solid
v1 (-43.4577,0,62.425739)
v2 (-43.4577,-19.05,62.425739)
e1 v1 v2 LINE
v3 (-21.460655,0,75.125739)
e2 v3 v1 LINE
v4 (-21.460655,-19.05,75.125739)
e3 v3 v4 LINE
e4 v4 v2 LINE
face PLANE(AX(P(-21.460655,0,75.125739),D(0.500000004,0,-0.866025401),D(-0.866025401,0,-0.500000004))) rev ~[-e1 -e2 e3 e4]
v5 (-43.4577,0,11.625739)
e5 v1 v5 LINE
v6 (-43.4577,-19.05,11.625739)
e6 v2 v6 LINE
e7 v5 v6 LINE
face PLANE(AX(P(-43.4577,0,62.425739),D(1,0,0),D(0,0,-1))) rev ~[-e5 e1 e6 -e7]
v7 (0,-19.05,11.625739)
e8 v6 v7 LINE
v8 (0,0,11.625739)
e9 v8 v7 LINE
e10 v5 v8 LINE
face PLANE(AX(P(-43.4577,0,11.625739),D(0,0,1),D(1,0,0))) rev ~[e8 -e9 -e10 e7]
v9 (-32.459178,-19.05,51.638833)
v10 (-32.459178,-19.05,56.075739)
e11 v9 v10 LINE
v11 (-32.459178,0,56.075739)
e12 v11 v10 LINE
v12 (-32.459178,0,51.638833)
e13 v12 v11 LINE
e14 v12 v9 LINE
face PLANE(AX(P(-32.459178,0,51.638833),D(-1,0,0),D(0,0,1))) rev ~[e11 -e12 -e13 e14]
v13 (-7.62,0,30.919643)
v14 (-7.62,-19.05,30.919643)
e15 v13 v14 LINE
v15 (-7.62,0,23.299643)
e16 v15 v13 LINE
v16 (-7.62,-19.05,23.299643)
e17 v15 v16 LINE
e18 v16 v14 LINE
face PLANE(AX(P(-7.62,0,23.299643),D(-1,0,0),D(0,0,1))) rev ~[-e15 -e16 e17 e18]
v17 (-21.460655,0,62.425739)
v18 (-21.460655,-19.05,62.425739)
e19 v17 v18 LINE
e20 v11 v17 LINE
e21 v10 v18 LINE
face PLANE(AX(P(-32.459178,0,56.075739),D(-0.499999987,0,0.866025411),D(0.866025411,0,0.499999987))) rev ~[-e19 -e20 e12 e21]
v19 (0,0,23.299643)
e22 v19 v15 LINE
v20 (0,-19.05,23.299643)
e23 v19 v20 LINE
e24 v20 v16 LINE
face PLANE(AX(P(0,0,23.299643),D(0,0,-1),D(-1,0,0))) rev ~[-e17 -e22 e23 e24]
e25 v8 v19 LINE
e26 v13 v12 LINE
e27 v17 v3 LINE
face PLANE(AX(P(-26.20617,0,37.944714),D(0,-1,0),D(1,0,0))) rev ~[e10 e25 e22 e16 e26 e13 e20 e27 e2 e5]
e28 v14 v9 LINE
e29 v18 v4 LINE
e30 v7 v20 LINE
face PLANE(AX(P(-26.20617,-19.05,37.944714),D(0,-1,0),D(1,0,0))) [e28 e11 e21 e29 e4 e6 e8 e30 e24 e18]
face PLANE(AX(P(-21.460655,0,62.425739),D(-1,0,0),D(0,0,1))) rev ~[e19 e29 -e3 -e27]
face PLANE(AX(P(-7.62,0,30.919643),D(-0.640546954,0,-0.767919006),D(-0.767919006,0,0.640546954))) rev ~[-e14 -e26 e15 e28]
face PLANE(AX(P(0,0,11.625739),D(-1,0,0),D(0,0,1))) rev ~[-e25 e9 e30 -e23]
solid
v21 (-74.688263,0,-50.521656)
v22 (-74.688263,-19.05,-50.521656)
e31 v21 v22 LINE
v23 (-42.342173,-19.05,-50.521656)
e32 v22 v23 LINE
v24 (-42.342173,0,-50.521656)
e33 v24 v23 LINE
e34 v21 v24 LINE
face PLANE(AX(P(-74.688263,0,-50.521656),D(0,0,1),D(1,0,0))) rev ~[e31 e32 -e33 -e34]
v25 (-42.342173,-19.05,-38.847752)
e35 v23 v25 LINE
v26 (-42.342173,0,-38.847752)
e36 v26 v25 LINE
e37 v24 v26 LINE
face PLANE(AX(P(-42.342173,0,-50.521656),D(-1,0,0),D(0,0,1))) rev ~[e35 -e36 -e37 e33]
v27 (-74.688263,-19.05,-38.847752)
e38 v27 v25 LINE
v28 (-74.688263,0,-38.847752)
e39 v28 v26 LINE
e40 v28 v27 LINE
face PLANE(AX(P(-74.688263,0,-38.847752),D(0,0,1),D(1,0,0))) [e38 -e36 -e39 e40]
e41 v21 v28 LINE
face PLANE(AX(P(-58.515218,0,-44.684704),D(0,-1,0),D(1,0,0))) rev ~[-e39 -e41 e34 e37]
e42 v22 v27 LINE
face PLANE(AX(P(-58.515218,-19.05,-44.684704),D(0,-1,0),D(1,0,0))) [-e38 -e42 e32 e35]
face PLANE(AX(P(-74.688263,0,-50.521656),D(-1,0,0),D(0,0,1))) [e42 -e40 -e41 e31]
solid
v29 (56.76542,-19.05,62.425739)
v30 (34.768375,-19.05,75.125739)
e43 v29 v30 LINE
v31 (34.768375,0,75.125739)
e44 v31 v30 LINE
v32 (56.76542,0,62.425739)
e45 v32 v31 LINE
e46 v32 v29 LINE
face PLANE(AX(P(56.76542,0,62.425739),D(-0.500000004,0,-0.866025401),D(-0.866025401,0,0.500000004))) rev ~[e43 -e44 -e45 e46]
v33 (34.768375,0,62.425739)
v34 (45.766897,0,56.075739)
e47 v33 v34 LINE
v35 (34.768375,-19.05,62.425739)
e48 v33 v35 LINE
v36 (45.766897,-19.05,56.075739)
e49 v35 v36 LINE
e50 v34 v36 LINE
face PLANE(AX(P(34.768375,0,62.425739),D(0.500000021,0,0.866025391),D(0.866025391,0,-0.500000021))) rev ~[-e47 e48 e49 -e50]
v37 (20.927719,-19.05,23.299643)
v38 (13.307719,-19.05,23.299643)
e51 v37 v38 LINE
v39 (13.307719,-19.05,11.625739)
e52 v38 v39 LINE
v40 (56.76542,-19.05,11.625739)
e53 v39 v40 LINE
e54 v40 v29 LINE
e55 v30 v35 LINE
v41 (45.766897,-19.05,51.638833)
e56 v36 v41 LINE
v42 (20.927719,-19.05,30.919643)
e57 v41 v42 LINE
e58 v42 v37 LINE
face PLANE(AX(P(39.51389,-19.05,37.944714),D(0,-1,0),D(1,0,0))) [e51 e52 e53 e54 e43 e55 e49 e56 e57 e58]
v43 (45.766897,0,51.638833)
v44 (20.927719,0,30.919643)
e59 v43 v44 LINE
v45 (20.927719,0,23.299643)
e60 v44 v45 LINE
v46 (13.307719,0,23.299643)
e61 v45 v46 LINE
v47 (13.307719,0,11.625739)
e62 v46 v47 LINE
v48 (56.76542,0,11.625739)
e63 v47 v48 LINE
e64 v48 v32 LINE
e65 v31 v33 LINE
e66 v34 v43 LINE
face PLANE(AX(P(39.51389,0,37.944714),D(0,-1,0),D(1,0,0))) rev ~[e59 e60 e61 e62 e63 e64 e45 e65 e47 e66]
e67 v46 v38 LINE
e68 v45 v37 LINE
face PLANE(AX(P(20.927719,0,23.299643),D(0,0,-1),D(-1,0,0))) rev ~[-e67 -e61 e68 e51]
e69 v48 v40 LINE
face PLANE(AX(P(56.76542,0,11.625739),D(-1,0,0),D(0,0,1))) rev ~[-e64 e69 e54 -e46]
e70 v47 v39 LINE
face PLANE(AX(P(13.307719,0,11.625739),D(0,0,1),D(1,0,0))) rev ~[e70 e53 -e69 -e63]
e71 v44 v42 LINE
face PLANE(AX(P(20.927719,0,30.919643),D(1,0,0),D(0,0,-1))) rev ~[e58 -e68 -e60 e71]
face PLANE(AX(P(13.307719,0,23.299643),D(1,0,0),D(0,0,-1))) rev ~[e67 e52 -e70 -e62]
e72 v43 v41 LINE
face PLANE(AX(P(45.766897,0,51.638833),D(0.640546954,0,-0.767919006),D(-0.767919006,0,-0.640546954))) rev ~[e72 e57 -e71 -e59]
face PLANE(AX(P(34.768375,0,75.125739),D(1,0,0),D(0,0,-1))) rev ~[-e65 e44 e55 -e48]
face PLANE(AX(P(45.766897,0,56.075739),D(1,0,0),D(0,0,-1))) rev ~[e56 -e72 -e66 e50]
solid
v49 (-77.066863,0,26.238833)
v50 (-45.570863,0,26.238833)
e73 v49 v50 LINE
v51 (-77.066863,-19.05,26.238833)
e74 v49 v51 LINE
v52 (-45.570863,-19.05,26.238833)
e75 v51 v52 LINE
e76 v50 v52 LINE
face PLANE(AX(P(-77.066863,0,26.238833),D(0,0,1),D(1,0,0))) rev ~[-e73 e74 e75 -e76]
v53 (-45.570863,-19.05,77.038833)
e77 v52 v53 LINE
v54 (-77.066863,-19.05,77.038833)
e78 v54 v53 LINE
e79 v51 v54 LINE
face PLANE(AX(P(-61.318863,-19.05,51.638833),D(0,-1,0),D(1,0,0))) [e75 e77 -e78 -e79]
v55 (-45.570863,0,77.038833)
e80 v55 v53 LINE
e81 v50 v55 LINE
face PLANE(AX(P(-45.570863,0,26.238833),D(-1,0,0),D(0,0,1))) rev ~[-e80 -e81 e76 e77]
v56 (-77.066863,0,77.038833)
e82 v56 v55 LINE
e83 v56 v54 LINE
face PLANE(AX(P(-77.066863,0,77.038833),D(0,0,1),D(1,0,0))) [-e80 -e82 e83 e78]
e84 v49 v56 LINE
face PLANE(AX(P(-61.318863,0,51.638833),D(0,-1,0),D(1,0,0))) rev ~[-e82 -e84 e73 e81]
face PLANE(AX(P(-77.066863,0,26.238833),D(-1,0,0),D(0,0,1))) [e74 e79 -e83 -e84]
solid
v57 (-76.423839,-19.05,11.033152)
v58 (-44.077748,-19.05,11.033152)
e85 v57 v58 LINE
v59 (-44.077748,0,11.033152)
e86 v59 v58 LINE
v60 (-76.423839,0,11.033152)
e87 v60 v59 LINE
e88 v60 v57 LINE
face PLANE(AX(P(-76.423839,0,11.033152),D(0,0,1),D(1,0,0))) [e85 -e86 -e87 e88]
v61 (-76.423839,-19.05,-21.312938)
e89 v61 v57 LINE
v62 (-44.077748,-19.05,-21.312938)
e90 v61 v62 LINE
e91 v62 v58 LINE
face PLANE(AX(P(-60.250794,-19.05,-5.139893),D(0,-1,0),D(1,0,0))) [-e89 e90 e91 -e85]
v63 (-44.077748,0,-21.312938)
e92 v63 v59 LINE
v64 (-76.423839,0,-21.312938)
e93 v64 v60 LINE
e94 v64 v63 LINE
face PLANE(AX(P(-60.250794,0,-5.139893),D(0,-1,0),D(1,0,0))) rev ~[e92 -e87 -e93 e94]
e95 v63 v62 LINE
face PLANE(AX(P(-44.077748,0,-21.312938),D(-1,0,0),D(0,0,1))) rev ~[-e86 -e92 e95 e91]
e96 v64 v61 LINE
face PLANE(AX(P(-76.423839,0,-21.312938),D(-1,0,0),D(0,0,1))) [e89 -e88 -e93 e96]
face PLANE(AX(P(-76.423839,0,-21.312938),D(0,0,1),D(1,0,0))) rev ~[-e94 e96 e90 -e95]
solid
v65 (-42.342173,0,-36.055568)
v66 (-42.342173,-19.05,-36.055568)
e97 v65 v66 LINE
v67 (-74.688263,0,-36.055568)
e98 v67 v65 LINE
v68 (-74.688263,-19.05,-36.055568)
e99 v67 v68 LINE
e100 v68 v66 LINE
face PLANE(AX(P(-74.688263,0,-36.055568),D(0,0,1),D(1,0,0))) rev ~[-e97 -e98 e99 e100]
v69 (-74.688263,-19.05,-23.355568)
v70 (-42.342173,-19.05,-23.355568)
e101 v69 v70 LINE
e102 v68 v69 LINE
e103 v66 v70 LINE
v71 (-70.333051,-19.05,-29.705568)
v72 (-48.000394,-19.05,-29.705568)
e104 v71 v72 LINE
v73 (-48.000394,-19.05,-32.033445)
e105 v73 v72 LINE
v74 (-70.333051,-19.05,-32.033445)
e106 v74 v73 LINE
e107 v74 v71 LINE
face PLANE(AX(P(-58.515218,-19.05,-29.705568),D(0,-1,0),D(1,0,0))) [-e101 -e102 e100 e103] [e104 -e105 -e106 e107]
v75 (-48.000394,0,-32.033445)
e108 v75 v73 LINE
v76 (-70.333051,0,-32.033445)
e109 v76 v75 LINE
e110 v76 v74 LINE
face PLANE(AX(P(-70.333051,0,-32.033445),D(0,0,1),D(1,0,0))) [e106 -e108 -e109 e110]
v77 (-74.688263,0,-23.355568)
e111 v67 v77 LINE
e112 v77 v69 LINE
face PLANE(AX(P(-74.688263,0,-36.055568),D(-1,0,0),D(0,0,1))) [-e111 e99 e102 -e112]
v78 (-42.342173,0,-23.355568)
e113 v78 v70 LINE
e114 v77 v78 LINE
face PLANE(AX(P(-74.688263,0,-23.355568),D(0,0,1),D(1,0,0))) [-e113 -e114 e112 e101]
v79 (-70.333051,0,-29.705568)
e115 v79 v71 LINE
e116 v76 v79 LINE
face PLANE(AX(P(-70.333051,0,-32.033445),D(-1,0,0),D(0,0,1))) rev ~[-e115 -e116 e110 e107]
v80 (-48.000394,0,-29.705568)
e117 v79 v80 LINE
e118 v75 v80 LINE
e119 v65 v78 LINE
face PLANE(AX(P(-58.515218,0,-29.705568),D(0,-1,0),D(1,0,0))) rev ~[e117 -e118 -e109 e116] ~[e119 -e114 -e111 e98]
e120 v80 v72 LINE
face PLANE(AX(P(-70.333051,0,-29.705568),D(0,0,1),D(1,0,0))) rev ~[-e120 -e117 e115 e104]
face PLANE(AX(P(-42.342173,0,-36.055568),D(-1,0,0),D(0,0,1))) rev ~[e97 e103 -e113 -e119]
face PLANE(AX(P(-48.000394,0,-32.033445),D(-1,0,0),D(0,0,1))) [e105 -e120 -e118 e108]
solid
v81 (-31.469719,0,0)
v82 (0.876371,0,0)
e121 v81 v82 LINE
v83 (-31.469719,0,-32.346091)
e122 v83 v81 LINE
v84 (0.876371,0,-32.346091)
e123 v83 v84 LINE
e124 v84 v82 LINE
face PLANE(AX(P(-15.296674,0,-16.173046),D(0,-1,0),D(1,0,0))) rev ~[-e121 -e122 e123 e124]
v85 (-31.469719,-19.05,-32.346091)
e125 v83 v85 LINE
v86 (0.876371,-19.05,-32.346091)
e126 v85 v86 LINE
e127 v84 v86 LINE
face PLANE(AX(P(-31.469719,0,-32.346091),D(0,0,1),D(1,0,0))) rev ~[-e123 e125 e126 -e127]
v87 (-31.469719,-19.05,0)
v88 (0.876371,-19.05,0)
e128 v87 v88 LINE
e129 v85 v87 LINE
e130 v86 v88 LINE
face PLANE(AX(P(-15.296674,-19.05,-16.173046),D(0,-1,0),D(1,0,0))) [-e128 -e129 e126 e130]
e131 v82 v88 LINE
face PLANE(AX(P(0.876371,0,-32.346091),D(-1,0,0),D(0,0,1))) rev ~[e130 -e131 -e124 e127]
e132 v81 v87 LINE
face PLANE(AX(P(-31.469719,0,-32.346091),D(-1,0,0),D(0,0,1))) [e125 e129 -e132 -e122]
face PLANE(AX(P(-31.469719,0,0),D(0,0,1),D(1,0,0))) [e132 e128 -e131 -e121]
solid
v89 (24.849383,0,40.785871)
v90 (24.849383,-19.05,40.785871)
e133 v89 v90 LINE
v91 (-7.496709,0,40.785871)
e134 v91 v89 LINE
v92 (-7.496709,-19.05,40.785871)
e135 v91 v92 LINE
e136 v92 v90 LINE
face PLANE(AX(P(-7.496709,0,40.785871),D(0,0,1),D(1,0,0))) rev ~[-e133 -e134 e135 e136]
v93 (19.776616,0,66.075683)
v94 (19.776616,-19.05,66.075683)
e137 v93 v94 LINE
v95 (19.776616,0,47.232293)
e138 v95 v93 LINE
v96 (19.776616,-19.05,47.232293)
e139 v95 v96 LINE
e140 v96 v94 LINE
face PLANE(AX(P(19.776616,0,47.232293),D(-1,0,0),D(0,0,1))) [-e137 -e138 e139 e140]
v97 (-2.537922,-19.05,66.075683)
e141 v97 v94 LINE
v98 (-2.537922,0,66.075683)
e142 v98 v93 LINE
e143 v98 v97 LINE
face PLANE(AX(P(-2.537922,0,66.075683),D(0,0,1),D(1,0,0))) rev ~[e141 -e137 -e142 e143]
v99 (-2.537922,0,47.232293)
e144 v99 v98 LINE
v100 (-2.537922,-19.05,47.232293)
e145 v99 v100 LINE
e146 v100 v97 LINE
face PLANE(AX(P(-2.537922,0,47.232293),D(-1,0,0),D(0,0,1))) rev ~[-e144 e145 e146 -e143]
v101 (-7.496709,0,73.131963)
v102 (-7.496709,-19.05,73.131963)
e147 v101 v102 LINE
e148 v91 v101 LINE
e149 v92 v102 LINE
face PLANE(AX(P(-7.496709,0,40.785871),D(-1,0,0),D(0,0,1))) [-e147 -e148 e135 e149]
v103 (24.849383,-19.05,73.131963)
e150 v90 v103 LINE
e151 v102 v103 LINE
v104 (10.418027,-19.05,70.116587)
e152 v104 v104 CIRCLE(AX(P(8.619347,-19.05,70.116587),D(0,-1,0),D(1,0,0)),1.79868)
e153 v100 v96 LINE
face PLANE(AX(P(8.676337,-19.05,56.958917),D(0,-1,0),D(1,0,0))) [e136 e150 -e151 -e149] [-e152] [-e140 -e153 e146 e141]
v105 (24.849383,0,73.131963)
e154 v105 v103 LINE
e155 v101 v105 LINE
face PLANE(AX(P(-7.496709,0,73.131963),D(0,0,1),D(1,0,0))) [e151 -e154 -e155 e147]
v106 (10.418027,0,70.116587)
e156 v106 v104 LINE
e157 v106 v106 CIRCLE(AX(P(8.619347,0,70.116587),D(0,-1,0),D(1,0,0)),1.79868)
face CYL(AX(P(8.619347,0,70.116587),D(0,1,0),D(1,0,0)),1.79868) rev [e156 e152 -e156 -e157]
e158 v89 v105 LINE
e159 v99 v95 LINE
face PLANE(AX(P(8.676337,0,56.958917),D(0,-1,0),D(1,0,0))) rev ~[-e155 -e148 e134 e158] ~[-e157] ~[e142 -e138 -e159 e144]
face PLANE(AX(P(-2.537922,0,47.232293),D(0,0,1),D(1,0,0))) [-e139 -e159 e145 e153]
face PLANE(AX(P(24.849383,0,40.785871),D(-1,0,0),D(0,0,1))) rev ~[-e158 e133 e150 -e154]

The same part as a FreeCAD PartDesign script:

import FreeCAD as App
import Part
import Sketcher
Q = App.Units.Quantity


def add_polygon(sketch, points):
    """Adds a closed chain of lines whose ends are joined by coincident constraints."""
    first, n = sketch.GeometryCount, len(points)
    for a, b in zip(points, points[1:] + points[:1]):
        sketch.addGeometry(Part.LineSegment(App.Vector(*a, 0), App.Vector(*b, 0)), False)
    for i in range(n):
        sketch.addConstraint(Sketcher.Constraint("Coincident", first + i, 2, first + (i + 1) % n, 1))

doc = App.newDocument("Part")
body = doc.addObject("PartDesign::Body", "Body")
body.AllowCompound = True

sketch1 = body.newObject("Sketcher::SketchObject", "Sketch")
sketch1.AttachmentSupport = (doc.getObject("XZ_Plane"), [""])
sketch1.MapMode = "FlatFace"
add_polygon(sketch1, [(-77.066863, 77.038833), (-77.066863, 26.238833), (-45.570863, 26.238833), (-45.570863, 77.038833)])
add_polygon(sketch1, [(-21.460655, 62.425739), (-21.460655, 75.125739), (-43.4577, 62.425739), (-43.4577, 11.625739), (0, 11.625739), (0, 23.299643), (-7.62, 23.299643), (-7.62, 30.919643), (-32.459178, 51.638833), (-32.459178, 56.075739)])
add_polygon(sketch1, [(56.76542, 62.425739), (34.768375, 75.125739), (34.768375, 62.425739), (45.766897, 56.075739), (45.766897, 51.638833), (20.927719, 30.919643), (20.927719, 23.299643), (13.307719, 23.299643), (13.307719, 11.625739), (56.76542, 11.625739)])
add_polygon(sketch1, [(-7.496709, 73.131963), (-7.496709, 40.785871), (24.849383, 40.785871), (24.849383, 73.131963)])
add_polygon(sketch1, [(19.776616, 47.232293), (-2.537922, 47.232293), (-2.537922, 66.075683), (19.776616, 66.075683)])
sketch1.addGeometry(Part.Circle(App.Vector(8.619347, 70.116587, 0), App.Vector(0, 0, 1), 1.79868), False)
add_polygon(sketch1, [(-76.423839, 11.033152), (-76.423839, -21.312938), (-44.077748, -21.312938), (-44.077748, 11.033152)])
add_polygon(sketch1, [(-31.469719, 0), (-31.469719, -32.346091), (0.876371, -32.346091), (0.876371, 0)])
add_polygon(sketch1, [(-74.688263, -23.355568), (-74.688263, -36.055568), (-42.342173, -36.055568), (-42.342173, -23.355568)])
add_polygon(sketch1, [(-48.000394, -32.033445), (-70.333051, -32.033445), (-70.333051, -29.705568), (-48.000394, -29.705568)])
add_polygon(sketch1, [(-74.688263, -38.847752), (-74.688263, -50.521656), (-42.342173, -50.521656), (-42.342173, -38.847752)])
sketch1.addConstraint([
    Sketcher.Constraint("Vertical", 0),
    Sketcher.Constraint("Horizontal", 1),
    Sketcher.Constraint("Vertical", 2),
    Sketcher.Constraint("Horizontal", 3),
    Sketcher.Constraint("Vertical", 4),
    Sketcher.Constraint("Vertical", 6),
    Sketcher.Constraint("Horizontal", 7),
    Sketcher.Constraint("Vertical", 8),
    Sketcher.Constraint("Horizontal", 9),
    Sketcher.Constraint("Vertical", 10),
    Sketcher.Constraint("Vertical", 12),
    Sketcher.Constraint("Vertical", 15),
    Sketcher.Constraint("Vertical", 17),
    Sketcher.Constraint("Vertical", 19),
    Sketcher.Constraint("Horizontal", 20),
    Sketcher.Constraint("Vertical", 21),
    Sketcher.Constraint("Horizontal", 22),
    Sketcher.Constraint("Vertical", 23),
    Sketcher.Constraint("Vertical", 24),
    Sketcher.Constraint("Horizontal", 25),
    Sketcher.Constraint("Vertical", 26),
    Sketcher.Constraint("Horizontal", 27),
    Sketcher.Constraint("Horizontal", 28),
    Sketcher.Constraint("Vertical", 29),
    Sketcher.Constraint("Horizontal", 30),
    Sketcher.Constraint("Vertical", 31),
    Sketcher.Constraint("Vertical", 33),
    Sketcher.Constraint("Horizontal", 34),
    Sketcher.Constraint("Vertical", 35),
    Sketcher.Constraint("Horizontal", 36),
    Sketcher.Constraint("Vertical", 37),
    Sketcher.Constraint("Horizontal", 38),
    Sketcher.Constraint("Vertical", 39),
    Sketcher.Constraint("Horizontal", 40),
    Sketcher.Constraint("Vertical", 41),
    Sketcher.Constraint("Horizontal", 42),
    Sketcher.Constraint("Vertical", 43),
    Sketcher.Constraint("Horizontal", 44),
    Sketcher.Constraint("Horizontal", 45),
    Sketcher.Constraint("Vertical", 46),
    Sketcher.Constraint("Horizontal", 47),
    Sketcher.Constraint("Vertical", 48),
    Sketcher.Constraint("Vertical", 49),
    Sketcher.Constraint("Horizontal", 50),
    Sketcher.Constraint("Vertical", 51),
    Sketcher.Constraint("Horizontal", 52),
    Sketcher.Constraint("PointOnObject", 7, 2, -2),
    Sketcher.Constraint("PointOnObject", 39, 2, -1),
    Sketcher.Constraint("Parallel", 5, 13),
    Sketcher.Constraint("Parallel", 14, 16),
    Sketcher.Constraint("Horizontal", 5, 2, 13, 2),
    Sketcher.Constraint("Horizontal", 4, 2, 14, 2),
    Sketcher.Constraint("Horizontal", 13, 2, 15, 2),
    Sketcher.Constraint("Horizontal", 12, 2, 16, 2),
    Sketcher.Constraint("Horizontal", 11, 2, 17, 2),
    Sketcher.Constraint("Horizontal", 10, 2, 18, 2),
    Sketcher.Constraint("Horizontal", 9, 2, 19, 2),
    Sketcher.Constraint("Horizontal", 7, 2, 21, 2),
    Sketcher.Constraint("Horizontal", 15, 2, 23, 2),
    Sketcher.Constraint("Vertical", 44, 2, 49, 2),
    Sketcher.Constraint("Vertical", 43, 2, 50, 2),
    Sketcher.Constraint("Equal", 9, 20),
    Sketcher.Constraint("Equal", 7, 22),
    Sketcher.Constraint("Equal", 27, 34),
    Sketcher.Constraint("Equal", 36, 38),
    Sketcher.Constraint("Equal", 40, 42),
    Sketcher.Constraint("Equal", 2, 6),
    Sketcher.Constraint("Equal", 20, 10),
    Sketcher.Constraint("Equal", 52, 24),
    Sketcher.Constraint("Equal", 26, 33),
    Sketcher.Constraint("Equal", 35, 37),
    Sketcher.Constraint("Equal", 15, 41),
    Sketcher.Constraint("Equal", 21, 49),
    Sketcher.Constraint("Equal", 5, 14),
    Sketcher.Constraint("DistanceY", 0, 2, 0, 1, Q("2 in")),
    Sketcher.Constraint("Distance", 5, Q("1 in")),
    Sketcher.Constraint("DistanceX", 9, 2, 9, 1, Q("0.3 in")),
    Sketcher.Constraint("DistanceY", 4, 1, 4, 2, Q("0.5 in")),
    Sketcher.Constraint("DistanceY", 1, 2, 11, 2, Q("1 in")),
    Sketcher.Constraint("Distance", 13, Q("0.5 in")),
    Sketcher.Constraint("DistanceX", 1, 1, 1, 2, Q("1.24 in")),
    Sketcher.Constraint("DistanceY", 46, 2, 44, 2, Q("0.25 in")),
    Sketcher.Constraint("Diameter", 32, Q("3.59736 mm")),
    Sketcher.Constraint("DistanceX", 7, 1, 7, 2, Q("43.4577 mm")),
    Sketcher.Constraint("DistanceX", 25, 1, 25, 2, Q("32.346091 mm")),
    Sketcher.Constraint("DistanceY", 29, 1, 29, 2, Q("18.84339 mm")),
    Sketcher.Constraint("Distance", 11, Q("32.346091 mm")),
    Sketcher.Constraint("DistanceX", 28, 2, 28, 1, Q("22.314538 mm")),
    Sketcher.Constraint("DistanceX", 45, 2, 45, 1, Q("22.332657 mm")),
    Sketcher.Constraint("DistanceY", 8, 1, 8, 2, Q("11.673904 mm")),
    Sketcher.Constraint("DistanceY", 46, 1, 46, 2, Q("2.327877 mm")),
    Sketcher.Constraint("DistanceY", -1, 1, 4, 2, Q("75.125739 mm")),
    Sketcher.Constraint("DistanceX", -1, 1, 18, 2, Q("20.927719 mm")),
    Sketcher.Constraint("DistanceX", 24, 2, -1, 1, Q("7.496709 mm")),
    Sketcher.Constraint("DistanceY", -1, 1, 24, 2, Q("40.785871 mm")),
    Sketcher.Constraint("DistanceX", 28, 2, -1, 1, Q("2.537922 mm")),
    Sketcher.Constraint("DistanceX", 33, 2, -1, 1, Q("76.423839 mm")),
    Sketcher.Constraint("DistanceX", 37, 2, -1, 1, Q("31.469719 mm")),
    Sketcher.Constraint("DistanceY", 43, 2, -1, 1, Q("23.355568 mm")),
    Sketcher.Constraint("DistanceX", 45, 2, -1, 1, Q("70.333051 mm")),
    Sketcher.Constraint("DistanceY", 51, 2, -1, 1, Q("38.847752 mm")),
    Sketcher.Constraint("DistanceX", 0, 2, 32, 3, Q("85.68621 mm")),
    Sketcher.Constraint("DistanceX", 2, 2, 4, 2, Q("24.110208 mm")),
    Sketcher.Constraint("DistanceY", 24, 2, 28, 2, Q("6.446421 mm")),
    Sketcher.Constraint("DistanceY", 33, 2, 0, 2, Q("47.551771 mm")),
    Sketcher.Constraint("DistanceX", 41, 2, 45, 2, Q("4.355212 mm")),
    Sketcher.Constraint("DistanceY", -1, 1, 32, 3, Q("70.116587 mm")),
])
pad1 = body.newObject("PartDesign::Pad", "Pad")
pad1.Profile = sketch1
pad1.Length = Q("0.75 in")

doc.recompute()
